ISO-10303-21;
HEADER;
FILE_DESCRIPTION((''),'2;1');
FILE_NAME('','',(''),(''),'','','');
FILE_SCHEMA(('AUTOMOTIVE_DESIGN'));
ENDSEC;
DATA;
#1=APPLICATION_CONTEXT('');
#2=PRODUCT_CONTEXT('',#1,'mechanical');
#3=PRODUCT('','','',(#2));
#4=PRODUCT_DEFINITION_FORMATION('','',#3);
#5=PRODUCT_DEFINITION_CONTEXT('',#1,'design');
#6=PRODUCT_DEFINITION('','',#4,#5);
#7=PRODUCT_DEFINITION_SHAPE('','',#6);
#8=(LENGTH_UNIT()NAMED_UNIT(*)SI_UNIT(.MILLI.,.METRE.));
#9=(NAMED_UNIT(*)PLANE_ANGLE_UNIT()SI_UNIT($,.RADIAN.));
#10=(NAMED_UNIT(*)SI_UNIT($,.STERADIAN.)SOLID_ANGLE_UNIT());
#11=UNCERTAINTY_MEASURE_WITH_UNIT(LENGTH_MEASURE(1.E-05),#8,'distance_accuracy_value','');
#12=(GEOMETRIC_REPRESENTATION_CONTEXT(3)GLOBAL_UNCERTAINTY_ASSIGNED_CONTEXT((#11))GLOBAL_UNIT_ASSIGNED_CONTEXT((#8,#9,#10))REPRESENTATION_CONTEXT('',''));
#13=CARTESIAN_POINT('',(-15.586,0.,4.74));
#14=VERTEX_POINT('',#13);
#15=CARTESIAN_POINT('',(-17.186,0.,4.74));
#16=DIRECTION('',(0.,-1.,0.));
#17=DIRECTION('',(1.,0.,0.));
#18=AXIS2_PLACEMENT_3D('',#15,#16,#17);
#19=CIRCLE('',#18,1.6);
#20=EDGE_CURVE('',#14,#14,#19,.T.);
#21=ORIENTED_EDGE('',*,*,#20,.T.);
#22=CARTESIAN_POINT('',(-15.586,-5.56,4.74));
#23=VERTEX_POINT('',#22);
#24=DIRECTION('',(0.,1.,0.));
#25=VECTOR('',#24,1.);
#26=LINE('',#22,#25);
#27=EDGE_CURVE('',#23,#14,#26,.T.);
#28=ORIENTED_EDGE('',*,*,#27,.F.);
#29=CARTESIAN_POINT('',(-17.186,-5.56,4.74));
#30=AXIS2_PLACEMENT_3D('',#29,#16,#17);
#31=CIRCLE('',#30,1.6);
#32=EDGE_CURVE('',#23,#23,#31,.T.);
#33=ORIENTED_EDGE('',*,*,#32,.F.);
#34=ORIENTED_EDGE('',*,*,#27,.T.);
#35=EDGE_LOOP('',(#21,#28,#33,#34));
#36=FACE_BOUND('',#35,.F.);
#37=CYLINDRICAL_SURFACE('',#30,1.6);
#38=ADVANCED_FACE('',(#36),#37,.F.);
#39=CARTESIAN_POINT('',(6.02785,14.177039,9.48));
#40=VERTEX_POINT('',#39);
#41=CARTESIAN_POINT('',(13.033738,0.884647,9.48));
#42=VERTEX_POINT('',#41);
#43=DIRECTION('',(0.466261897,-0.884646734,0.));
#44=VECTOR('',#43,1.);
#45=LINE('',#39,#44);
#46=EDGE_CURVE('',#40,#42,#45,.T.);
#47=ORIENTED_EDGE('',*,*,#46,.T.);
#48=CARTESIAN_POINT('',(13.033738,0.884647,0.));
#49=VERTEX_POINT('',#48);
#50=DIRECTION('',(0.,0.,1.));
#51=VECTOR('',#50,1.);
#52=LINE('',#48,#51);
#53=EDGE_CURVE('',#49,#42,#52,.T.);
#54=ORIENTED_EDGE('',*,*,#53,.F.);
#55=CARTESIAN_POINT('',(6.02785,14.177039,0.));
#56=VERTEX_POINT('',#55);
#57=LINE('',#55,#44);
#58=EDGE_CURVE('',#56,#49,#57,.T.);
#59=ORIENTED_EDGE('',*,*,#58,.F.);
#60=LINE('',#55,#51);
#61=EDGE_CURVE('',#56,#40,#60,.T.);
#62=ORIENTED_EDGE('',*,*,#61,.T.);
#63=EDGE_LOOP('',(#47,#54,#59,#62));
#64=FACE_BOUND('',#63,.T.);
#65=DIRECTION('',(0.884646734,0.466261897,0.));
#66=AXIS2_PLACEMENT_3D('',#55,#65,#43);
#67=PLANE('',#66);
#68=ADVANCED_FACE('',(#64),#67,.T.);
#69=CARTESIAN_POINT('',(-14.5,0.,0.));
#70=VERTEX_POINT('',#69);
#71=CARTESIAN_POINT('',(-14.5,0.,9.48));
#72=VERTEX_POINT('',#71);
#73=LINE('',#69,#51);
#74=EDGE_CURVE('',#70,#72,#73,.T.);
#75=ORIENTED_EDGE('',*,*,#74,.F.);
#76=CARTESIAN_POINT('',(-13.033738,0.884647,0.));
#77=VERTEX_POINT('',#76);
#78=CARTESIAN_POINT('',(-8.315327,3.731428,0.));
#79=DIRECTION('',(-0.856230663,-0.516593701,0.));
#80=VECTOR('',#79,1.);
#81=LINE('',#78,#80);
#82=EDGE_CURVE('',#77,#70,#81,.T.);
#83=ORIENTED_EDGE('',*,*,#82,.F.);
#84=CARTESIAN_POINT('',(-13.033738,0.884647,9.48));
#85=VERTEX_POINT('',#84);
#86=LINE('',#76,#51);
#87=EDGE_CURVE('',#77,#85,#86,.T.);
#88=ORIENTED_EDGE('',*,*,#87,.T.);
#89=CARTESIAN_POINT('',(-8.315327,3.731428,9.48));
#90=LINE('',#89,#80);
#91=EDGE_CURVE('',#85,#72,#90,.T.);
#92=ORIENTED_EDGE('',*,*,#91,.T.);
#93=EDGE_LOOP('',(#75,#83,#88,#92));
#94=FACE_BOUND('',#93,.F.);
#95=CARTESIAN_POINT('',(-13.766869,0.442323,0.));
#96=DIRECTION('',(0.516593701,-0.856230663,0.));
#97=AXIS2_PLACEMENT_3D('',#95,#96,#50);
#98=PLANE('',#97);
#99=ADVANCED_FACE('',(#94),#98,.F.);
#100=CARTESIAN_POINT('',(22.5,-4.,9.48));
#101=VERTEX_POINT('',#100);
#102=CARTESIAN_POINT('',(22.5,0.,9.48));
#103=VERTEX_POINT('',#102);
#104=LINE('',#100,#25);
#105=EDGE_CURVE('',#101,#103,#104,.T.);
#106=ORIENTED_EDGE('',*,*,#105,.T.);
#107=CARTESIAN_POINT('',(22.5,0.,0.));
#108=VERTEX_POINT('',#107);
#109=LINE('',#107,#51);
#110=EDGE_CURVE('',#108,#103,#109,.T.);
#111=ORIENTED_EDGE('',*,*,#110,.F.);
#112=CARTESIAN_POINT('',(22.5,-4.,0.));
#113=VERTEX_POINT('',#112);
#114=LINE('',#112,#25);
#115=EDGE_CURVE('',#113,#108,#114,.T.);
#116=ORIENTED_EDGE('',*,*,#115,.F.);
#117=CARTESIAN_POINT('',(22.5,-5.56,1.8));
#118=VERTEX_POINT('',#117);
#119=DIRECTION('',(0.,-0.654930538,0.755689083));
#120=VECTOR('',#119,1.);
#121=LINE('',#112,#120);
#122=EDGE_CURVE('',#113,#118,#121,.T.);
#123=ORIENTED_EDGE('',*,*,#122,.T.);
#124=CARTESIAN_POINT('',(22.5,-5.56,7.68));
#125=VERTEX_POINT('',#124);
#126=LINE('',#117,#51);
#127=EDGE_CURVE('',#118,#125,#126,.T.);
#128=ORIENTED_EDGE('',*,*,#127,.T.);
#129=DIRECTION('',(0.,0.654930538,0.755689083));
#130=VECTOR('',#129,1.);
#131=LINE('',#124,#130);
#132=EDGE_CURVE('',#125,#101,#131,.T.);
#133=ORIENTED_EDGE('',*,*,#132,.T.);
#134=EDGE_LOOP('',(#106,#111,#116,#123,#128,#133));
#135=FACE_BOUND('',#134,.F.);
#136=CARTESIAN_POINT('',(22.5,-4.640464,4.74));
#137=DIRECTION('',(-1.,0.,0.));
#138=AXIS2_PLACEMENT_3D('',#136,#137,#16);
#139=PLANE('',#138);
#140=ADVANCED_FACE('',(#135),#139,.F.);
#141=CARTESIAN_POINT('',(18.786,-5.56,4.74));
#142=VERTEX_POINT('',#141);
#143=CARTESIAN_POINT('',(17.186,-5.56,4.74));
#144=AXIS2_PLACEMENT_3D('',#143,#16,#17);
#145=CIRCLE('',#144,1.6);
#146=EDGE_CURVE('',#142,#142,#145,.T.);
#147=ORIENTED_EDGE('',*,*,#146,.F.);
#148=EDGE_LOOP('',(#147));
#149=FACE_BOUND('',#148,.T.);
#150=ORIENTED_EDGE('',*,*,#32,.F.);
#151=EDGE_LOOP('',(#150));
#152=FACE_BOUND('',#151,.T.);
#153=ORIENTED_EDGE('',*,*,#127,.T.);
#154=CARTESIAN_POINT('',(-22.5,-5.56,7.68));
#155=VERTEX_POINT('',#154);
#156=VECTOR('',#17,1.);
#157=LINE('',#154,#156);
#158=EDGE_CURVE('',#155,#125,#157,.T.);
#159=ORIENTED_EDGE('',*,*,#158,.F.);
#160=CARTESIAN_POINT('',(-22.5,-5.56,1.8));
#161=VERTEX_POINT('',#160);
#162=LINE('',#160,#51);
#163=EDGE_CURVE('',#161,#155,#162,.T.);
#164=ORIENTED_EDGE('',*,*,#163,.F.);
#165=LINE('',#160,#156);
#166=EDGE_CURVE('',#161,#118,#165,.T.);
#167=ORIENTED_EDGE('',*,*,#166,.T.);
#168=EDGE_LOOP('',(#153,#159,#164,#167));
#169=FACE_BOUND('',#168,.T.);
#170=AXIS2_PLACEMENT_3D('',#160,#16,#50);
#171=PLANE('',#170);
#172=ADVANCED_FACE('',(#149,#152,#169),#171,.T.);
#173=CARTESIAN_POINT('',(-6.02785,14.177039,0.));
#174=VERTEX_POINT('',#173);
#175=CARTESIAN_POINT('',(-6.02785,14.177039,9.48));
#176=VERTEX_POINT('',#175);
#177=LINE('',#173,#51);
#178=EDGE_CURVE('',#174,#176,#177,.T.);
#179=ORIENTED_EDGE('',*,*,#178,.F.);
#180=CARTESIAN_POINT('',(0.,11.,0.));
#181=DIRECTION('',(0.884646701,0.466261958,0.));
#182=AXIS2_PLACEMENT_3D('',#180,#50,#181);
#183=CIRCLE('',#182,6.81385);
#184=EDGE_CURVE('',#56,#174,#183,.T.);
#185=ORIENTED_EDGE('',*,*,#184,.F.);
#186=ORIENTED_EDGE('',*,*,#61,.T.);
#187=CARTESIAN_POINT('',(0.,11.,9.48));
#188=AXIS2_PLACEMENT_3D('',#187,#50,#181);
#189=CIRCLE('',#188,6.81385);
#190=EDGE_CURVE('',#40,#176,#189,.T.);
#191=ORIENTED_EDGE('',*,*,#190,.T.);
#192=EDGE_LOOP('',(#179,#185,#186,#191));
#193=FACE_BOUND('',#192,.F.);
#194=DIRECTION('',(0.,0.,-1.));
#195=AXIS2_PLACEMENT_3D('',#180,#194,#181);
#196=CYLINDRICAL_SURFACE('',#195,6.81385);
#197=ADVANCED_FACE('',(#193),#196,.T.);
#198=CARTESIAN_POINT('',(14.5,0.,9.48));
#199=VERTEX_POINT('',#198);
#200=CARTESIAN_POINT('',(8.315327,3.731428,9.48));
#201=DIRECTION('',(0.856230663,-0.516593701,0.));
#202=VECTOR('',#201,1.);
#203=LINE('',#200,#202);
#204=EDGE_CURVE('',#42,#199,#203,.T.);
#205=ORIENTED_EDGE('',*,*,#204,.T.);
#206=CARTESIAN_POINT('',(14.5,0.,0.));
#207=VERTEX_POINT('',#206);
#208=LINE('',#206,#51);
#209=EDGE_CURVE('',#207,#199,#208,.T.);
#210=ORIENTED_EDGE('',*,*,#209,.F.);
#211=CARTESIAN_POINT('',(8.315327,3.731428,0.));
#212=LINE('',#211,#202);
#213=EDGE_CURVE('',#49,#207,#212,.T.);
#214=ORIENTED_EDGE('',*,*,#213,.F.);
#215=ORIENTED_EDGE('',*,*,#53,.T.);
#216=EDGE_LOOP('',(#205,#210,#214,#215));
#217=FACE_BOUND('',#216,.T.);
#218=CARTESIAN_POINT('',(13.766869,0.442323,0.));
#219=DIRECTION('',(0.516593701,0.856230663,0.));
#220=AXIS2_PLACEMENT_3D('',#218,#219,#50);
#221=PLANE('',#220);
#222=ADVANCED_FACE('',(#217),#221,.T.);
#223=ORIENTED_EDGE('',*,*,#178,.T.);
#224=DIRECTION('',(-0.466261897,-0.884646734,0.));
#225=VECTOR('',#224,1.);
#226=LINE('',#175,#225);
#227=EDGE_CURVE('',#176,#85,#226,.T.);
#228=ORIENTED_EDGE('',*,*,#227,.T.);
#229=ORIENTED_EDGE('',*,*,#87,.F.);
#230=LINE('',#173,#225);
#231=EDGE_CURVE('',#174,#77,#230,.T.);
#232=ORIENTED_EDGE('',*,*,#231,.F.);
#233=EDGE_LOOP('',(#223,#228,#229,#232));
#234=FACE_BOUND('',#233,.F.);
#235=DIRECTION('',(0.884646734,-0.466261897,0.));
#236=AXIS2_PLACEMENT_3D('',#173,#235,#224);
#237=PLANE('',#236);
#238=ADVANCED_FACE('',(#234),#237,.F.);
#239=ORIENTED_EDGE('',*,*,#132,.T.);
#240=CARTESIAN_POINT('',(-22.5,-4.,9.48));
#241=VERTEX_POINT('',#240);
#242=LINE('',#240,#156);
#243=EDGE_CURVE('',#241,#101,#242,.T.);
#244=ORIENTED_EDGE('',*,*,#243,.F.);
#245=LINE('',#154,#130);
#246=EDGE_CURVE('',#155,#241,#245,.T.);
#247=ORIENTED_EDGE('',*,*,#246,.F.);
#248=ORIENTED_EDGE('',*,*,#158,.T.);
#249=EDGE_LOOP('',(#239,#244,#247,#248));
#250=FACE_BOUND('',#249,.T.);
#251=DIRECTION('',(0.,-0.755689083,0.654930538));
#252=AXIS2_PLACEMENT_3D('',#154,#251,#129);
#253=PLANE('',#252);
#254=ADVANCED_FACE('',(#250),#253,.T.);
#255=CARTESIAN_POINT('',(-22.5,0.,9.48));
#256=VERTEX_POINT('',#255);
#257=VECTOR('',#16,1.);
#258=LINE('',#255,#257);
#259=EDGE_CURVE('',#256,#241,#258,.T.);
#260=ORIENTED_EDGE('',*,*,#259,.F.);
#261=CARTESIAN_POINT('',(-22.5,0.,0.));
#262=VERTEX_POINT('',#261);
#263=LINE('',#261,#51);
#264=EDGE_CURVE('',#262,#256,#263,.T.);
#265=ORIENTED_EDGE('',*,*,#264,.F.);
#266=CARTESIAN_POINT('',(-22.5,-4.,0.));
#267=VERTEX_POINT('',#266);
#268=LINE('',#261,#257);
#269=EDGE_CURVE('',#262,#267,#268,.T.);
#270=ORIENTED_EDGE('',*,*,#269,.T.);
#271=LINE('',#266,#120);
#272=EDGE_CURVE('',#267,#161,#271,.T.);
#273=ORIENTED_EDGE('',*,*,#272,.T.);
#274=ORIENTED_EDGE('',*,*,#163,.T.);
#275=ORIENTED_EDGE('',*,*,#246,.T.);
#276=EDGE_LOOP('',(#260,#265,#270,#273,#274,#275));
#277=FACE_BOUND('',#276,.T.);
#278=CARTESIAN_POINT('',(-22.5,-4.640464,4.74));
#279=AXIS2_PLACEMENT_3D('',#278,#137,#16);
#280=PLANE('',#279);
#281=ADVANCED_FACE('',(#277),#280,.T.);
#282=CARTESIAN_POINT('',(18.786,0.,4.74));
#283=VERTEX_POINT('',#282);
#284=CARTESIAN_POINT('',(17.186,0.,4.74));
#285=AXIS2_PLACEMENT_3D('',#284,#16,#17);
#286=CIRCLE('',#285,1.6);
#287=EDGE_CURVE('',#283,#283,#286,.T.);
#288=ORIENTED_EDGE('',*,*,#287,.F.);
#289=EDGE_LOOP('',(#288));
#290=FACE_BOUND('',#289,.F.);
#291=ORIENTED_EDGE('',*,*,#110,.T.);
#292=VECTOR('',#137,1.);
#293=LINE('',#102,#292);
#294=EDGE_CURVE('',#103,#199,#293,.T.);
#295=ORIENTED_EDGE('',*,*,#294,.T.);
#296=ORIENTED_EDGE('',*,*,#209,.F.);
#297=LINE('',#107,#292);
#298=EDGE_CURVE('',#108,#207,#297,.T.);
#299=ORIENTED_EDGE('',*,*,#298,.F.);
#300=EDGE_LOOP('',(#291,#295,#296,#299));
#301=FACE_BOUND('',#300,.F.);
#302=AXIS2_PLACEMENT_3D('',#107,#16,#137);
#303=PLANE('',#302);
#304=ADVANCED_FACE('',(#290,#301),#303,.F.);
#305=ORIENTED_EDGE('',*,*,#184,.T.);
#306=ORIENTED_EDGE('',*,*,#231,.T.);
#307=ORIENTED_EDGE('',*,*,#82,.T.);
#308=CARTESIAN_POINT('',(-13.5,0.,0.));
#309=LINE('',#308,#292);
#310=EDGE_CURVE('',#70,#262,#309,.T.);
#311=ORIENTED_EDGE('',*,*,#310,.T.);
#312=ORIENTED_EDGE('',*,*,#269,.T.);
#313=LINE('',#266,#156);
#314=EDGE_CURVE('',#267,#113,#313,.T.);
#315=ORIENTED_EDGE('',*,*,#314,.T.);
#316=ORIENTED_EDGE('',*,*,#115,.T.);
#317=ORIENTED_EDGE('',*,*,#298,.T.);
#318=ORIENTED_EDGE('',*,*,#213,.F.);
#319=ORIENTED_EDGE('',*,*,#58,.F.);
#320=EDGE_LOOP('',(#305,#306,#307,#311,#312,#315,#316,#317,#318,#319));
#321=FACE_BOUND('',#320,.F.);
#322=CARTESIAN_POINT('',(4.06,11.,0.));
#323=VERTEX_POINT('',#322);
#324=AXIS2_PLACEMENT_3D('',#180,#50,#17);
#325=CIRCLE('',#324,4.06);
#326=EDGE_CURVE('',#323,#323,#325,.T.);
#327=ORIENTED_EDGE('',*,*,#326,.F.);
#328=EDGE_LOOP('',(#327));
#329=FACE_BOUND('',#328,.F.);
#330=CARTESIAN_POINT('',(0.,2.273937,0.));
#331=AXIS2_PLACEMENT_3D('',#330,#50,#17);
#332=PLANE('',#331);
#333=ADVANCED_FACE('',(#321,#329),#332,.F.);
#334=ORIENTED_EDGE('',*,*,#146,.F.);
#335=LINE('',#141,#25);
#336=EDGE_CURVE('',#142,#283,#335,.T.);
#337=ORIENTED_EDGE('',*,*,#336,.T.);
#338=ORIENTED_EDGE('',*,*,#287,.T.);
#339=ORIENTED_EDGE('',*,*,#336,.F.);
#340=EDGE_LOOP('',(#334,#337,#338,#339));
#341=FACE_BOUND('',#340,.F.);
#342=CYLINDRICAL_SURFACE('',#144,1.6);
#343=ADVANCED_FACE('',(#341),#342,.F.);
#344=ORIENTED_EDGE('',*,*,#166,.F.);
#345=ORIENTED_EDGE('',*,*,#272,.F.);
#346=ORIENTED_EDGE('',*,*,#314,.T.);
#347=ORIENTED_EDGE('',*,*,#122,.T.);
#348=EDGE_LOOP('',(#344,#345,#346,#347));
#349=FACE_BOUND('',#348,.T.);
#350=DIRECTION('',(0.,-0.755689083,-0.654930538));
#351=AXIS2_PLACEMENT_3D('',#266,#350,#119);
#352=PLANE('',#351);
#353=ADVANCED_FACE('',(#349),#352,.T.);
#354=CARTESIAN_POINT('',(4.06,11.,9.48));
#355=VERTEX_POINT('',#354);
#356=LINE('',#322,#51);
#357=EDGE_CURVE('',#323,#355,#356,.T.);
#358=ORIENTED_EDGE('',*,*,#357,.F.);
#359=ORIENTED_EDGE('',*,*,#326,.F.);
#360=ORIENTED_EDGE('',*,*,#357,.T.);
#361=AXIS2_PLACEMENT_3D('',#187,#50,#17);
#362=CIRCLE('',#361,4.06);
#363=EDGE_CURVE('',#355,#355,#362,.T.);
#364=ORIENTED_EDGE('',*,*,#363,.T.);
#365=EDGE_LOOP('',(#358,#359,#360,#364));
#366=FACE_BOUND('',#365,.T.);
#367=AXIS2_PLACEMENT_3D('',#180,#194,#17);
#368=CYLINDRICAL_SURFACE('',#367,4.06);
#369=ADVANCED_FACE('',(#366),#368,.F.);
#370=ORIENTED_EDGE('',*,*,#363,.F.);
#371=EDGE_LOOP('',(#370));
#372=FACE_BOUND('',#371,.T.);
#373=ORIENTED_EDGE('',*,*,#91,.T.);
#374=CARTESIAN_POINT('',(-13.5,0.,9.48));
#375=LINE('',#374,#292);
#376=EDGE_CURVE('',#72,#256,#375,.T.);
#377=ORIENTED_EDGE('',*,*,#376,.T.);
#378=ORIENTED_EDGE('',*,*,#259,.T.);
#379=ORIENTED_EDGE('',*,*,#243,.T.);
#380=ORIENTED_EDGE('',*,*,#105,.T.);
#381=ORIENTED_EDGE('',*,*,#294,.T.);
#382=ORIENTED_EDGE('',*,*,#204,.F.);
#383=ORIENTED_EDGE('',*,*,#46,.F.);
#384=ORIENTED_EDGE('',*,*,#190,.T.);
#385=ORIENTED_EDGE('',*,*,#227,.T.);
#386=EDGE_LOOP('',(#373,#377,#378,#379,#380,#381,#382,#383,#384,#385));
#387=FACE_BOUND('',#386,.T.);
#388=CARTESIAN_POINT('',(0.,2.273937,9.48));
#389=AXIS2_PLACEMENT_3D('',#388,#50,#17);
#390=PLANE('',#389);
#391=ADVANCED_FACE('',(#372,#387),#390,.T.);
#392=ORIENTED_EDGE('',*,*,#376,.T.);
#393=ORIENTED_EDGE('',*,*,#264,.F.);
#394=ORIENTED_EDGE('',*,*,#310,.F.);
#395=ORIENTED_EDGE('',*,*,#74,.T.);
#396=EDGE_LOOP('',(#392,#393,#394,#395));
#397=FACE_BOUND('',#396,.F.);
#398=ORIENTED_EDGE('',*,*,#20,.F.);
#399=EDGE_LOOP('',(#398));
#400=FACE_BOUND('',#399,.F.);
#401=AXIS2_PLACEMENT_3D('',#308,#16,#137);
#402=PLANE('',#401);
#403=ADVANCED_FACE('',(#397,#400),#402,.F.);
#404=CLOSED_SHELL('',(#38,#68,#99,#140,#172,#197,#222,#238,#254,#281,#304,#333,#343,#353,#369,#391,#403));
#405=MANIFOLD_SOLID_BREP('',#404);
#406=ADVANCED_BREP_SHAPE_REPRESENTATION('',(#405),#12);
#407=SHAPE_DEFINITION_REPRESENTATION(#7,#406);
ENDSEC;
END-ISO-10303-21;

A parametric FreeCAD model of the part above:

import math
import FreeCAD as App
import Part
import Sketcher
Q = App.Units.Quantity


def edges_at(feature, points):
    """Names of the edges that pass closest to the given points."""
    edges = feature.Shape.Edges
    near = lambda p: min(range(len(edges)), key=lambda i: edges[i].distToShape(Part.Vertex(*p))[0])
    return sorted({f"Edge{near(p) + 1}" for p in points})


def add_polygon(sketch, points):
    """Adds a closed chain of lines whose ends are joined by coincident constraints."""
    first, n = sketch.GeometryCount, len(points)
    for a, b in zip(points, points[1:] + points[:1]):
        sketch.addGeometry(Part.LineSegment(App.Vector(*a, 0), App.Vector(*b, 0)), False)
    for i in range(n):
        sketch.addConstraint(Sketcher.Constraint("Coincident", first + i, 2, first + (i + 1) % n, 1))

doc = App.newDocument("Part")
body = doc.addObject("PartDesign::Body", "Body")

# Sketch on XY plane
sketch1 = body.newObject("Sketcher::SketchObject", "Sketch")
sketch1.AttachmentSupport = (doc.getObject("XY_Plane"), [""])
sketch1.MapMode = "FlatFace"
sketch1.addGeometry([
    Part.ArcOfCircle(Part.Circle(App.Vector(0, 11, 0), App.Vector(0, 0, 1), 6.8), math.radians(28), math.radians(152)),  # 0
    Part.LineSegment(App.Vector(-6, 14.2, 0), App.Vector(-13.5, 0, 0)),  # 1
    Part.LineSegment(App.Vector(-13.5, 0, 0), App.Vector(-22.5, 0, 0)),  # 2
    Part.LineSegment(App.Vector(-22.5, 0, 0), App.Vector(-22.5, -4, 0)),  # 3
    Part.LineSegment(App.Vector(-22.5, -4, 0), App.Vector(22.5, -4, 0)),  # 4
    Part.LineSegment(App.Vector(22.5, -4, 0), App.Vector(22.5, 0, 0)),  # 5
    Part.LineSegment(App.Vector(22.5, 0, 0), App.Vector(13.5, 0, 0)),  # 6
    Part.LineSegment(App.Vector(13.5, 0, 0), App.Vector(6, 14.2, 0)),  # 7
    Part.Circle(App.Vector(0, 11, 0), App.Vector(0, 0, 1), 4.1),  # 8
], False)
sketch1.addConstraint([
    Sketcher.Constraint("Tangent", 0, 2, 1, 1),
    Sketcher.Constraint("Coincident", 1, 2, 2, 1),
    Sketcher.Constraint("Coincident", 2, 2, 3, 1),
    Sketcher.Constraint("Coincident", 3, 2, 4, 1),
    Sketcher.Constraint("Coincident", 4, 2, 5, 1),
    Sketcher.Constraint("Coincident", 5, 2, 6, 1),
    Sketcher.Constraint("Coincident", 6, 2, 7, 1),
    Sketcher.Constraint("Tangent", 7, 2, 0, 1),
    Sketcher.Constraint("Horizontal", 2),
    Sketcher.Constraint("Vertical", 3),
    Sketcher.Constraint("Horizontal", 4),
    Sketcher.Constraint("Vertical", 5),
    Sketcher.Constraint("Horizontal", 6),
    Sketcher.Constraint("Coincident", 8, 3, 0, 3),
    Sketcher.Constraint("Symmetric", 2, 2, 5, 2, -1, 1),
    Sketcher.Constraint("Symmetric", 1, 2, 6, 2, -2),
    Sketcher.Constraint("PointOnObject", 0, 3, -2),
    Sketcher.Constraint("Diameter", 8, Q("8.12 mm")),
    Sketcher.Constraint("DistanceX", 2, 2, 2, 1, Q("9 mm")),
    Sketcher.Constraint("DistanceX", 4, 1, 4, 2, Q("45 mm")),
    Sketcher.Constraint("DistanceY", 3, 2, 3, 1, Q("4 mm")),
    Sketcher.Constraint("DistanceY", -1, 1, 0, 3, Q("11 mm")),
    Sketcher.Constraint("Radius", 0, Q("6.81385 mm")),
])
pad1 = body.newObject("PartDesign::Pad", "Pad")
pad1.Profile = sketch1
pad1.Length = 9.48

# Sketch on YZ plane
sketch2 = body.newObject("Sketcher::SketchObject", "Sketch001")
sketch2.AttachmentSupport = (doc.getObject("YZ_Plane"), [""])
sketch2.MapMode = "FlatFace"
sketch2.AttachmentOffset = App.Placement(App.Vector(0, 0, -22.5), App.Rotation())
add_polygon(sketch2, [(-4, 9.5), (-4, 0), (-5.6, 1.8), (-5.6, 7.7)])  # lines 0-3
sketch2.addConstraint([
    Sketcher.Constraint("Vertical", 0),
    Sketcher.Constraint("Vertical", 2),
    Sketcher.Constraint("PointOnObject", 0, 2, -1),
    Sketcher.Constraint("Equal", 1, 3),
    Sketcher.Constraint("DistanceX", 0, 2, -1, 1, Q("4 mm")),
    Sketcher.Constraint("DistanceY", 0, 2, 0, 1, Q("9.48 mm")),
    Sketcher.Constraint("DistanceY", 2, 1, 2, 2, Q("5.88 mm")),
    Sketcher.Constraint("DistanceX", 1, 2, -1, 1, Q("5.56 mm")),
])
pad2 = body.newObject("PartDesign::Pad", "Pad001")
pad2.Profile = sketch2
pad2.Length = 45

# Sketch on XZ plane
sketch3 = body.newObject("Sketcher::SketchObject", "Sketch002")
sketch3.AttachmentSupport = (doc.getObject("XZ_Plane"), [""])
sketch3.MapMode = "FlatFace"
sketch3.AttachmentOffset = App.Placement(App.Vector(0, 0, 5.56), App.Rotation())
sketch3.addGeometry([
    Part.Circle(App.Vector(-17.2, 4.7, 0), App.Vector(0, 0, 1), 1.6),
    Part.Circle(App.Vector(17.2, 4.7, 0), App.Vector(0, 0, 1), 1.6),
], False)
sketch3.addConstraint([
    Sketcher.Constraint("Equal", 0, 1),
    Sketcher.Constraint("Symmetric", 0, 3, 1, 3, -2),
    Sketcher.Constraint("Diameter", 0, Q("3.2 mm")),
    Sketcher.Constraint("DistanceY", -1, 1, 0, 3, Q("4.74 mm")),
    Sketcher.Constraint("DistanceX", 0, 3, -1, 1, Q("17.186 mm")),
])
pocket1 = body.newObject("PartDesign::Pocket", "Pocket")
pocket1.Profile = sketch3
pocket1.Type = "ThroughAll"
doc.recompute()

chamfer = body.newObject("PartDesign::Chamfer", "Chamfer")
chamfer.Base = (pocket1, edges_at(pocket1, [(13.5, 0, 4.74), (-13.5, 0, 4.74)]))
chamfer.Size = 1

doc.recompute()
